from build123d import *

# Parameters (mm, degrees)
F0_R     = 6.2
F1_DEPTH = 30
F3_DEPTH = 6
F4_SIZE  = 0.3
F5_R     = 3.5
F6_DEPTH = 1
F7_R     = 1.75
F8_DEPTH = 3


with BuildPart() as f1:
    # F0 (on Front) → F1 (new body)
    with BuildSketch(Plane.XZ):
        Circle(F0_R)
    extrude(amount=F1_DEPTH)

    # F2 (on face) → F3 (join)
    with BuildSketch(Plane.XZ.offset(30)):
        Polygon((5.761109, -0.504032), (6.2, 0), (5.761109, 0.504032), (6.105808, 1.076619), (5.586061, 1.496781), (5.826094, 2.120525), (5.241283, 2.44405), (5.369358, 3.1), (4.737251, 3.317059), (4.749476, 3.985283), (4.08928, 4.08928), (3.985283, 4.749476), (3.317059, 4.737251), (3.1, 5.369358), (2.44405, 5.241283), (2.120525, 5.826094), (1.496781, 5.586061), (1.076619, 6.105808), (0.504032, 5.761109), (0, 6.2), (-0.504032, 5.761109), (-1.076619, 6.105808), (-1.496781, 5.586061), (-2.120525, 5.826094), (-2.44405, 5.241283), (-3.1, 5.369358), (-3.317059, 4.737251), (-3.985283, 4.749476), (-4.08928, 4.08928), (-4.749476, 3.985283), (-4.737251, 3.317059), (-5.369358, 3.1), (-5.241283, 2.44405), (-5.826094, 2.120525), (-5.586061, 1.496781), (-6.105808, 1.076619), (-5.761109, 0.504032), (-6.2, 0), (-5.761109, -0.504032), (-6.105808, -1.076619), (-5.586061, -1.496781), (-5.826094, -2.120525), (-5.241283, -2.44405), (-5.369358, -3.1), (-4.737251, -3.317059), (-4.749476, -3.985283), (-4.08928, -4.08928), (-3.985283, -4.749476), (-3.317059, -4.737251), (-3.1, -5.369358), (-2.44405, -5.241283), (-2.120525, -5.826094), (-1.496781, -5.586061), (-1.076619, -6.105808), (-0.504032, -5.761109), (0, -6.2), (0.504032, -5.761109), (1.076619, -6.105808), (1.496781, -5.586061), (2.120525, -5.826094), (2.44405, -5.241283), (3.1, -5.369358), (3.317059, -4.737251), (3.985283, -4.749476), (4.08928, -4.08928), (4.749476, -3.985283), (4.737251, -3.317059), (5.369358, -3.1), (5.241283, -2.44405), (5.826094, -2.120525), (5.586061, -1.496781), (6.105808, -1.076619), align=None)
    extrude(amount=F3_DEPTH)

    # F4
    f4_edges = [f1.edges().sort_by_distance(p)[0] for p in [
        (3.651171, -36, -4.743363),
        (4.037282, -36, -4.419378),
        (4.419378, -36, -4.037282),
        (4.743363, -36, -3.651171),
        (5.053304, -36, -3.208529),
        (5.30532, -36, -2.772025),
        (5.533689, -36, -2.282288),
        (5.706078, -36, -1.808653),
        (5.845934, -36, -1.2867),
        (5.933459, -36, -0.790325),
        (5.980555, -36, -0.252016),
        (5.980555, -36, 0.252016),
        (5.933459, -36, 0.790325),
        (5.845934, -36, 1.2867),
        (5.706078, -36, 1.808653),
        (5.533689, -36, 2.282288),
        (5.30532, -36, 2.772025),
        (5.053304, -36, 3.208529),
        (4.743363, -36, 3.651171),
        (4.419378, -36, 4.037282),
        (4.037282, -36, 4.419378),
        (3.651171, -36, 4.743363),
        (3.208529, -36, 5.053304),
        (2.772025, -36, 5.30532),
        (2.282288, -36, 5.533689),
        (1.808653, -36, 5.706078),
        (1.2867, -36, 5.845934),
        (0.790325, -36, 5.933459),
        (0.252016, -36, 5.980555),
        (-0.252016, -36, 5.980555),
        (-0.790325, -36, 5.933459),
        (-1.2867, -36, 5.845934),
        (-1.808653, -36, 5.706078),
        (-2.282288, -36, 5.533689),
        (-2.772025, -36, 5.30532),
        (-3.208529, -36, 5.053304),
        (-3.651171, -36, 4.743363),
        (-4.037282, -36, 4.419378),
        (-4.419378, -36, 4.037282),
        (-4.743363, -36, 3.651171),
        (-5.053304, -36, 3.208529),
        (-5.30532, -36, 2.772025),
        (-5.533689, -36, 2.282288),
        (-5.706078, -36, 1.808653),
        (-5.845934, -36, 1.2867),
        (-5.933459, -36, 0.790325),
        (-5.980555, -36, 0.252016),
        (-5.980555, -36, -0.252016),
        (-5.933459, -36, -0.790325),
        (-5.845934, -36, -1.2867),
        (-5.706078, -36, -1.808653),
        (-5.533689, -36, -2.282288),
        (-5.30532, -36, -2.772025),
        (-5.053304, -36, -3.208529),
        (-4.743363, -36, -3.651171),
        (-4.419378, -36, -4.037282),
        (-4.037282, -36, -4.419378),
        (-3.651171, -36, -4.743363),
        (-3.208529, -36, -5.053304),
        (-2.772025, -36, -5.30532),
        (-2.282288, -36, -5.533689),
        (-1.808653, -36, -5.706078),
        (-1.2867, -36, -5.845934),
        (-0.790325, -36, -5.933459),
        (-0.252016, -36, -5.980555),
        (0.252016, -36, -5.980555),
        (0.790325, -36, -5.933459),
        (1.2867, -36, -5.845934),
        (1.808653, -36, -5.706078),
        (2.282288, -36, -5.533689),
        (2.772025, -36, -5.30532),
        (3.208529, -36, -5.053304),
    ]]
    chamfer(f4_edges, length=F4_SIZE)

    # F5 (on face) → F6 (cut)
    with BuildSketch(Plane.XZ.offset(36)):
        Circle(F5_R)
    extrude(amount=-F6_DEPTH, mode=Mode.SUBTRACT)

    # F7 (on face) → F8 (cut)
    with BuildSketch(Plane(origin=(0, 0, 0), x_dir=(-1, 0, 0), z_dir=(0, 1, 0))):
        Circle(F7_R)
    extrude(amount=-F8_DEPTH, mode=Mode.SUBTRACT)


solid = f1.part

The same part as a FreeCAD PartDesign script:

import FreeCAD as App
import Part
import Sketcher
from FreeCAD import Vector


def edges_at(feature, points):
    """Names of the edges that pass closest to the given points."""
    edges = feature.Shape.Edges
    near = lambda p: min(range(len(edges)), key=lambda i: edges[i].distToShape(Part.Vertex(*p))[0])
    return sorted({f"Edge{near(p) + 1}" for p in points})


def add_polygon(sketch, points):
    """Adds a closed chain of lines whose ends are joined by coincident constraints."""
    first, n = sketch.GeometryCount, len(points)
    for a, b in zip(points, points[1:] + points[:1]):
        sketch.addGeometry(Part.LineSegment(App.Vector(*a, 0), App.Vector(*b, 0)), False)
    for i in range(n):
        sketch.addConstraint(Sketcher.Constraint("Coincident", first + i, 2, first + (i + 1) % n, 1))

doc = App.newDocument("Part")
params = doc.addObject("Spreadsheet::Sheet", "Params")
for row, (alias, value) in enumerate([
    ("sketch1_diameter", "12.4 mm"),
    ("pad1_length", "30 mm"),
    ("pad2_length", "6 mm"),
    ("chamfer_size", "0.3 mm"),
    ("sketch3_diameter", "7 mm"),
    ("pocket1_length", "1 mm"),
    ("sketch4_diameter", "3.5 mm"),
    ("pocket2_length", "3 mm"),
], start=1):
    params.set(f"A{row}", alias)
    params.set(f"B{row}", "=" + value)
    params.setAlias(f"B{row}", alias)

body = doc.addObject("PartDesign::Body", "Body")

sketch1 = doc.addObject("Sketcher::SketchObject", "Sketch")
body.addObject(sketch1)
sketch1.AttachmentSupport = (doc.XZ_Plane, [""])
sketch1.MapMode = "FlatFace"
sketch1.addGeometry(Part.Circle(Vector(0, 0, 0), Vector(0, 0, 1), 6), False)
sketch1.addConstraint([
    Sketcher.Constraint("Coincident", 0, 3, -1, 1),
    Sketcher.Constraint("Diameter", 0, 12.4),
])
sketch1.setExpression("Constraints[1]", "Params.sketch1_diameter")
pad1 = doc.addObject("PartDesign::Pad", "Pad")
body.addObject(pad1)
pad1.Profile = sketch1
pad1.setExpression("Length", "Params.pad1_length")

sketch2 = doc.addObject("Sketcher::SketchObject", "Sketch001")
body.addObject(sketch2)
sketch2.AttachmentSupport = (doc.XZ_Plane, [""])
sketch2.MapMode = "FlatFace"
sketch2.AttachmentOffset = App.Placement(Vector(0, 0, 30), App.Rotation())
add_polygon(sketch2, [(5.8, -0.5), (6.2, 0), (5.8, 0.5), (6.1, 1.1), (5.6, 1.5), (5.8, 2.1), (5.2, 2.4), (5.4, 3.1), (4.7, 3.3), (4.7, 4), (4.1, 4.1), (4, 4.7), (3.3, 4.7), (3.1, 5.4), (2.4, 5.2), (2.1, 5.8), (1.5, 5.6), (1.1, 6.1), (0.5, 5.8), (0, 6.2), (-0.5, 5.8), (-1.1, 6.1), (-1.5, 5.6), (-2.1, 5.8), (-2.4, 5.2), (-3.1, 5.4), (-3.3, 4.7), (-4, 4.7), (-4.1, 4.1), (-4.7, 4), (-4.7, 3.3), (-5.4, 3.1), (-5.2, 2.4), (-5.8, 2.1), (-5.6, 1.5), (-6.1, 1.1), (-5.8, 0.5), (-6.2, 0), (-5.8, -0.5), (-6.1, -1.1), (-5.6, -1.5), (-5.8, -2.1), (-5.2, -2.4), (-5.4, -3.1), (-4.7, -3.3), (-4.7, -4), (-4.1, -4.1), (-4, -4.7), (-3.3, -4.7), (-3.1, -5.4), (-2.4, -5.2), (-2.1, -5.8), (-1.5, -5.6), (-1.1, -6.1), (-0.5, -5.8), (0, -6.2), (0.5, -5.8), (1.1, -6.1), (1.5, -5.6), (2.1, -5.8), (2.4, -5.2), (3.1, -5.4), (3.3, -4.7), (4, -4.7), (4.1, -4.1), (4.7, -4), (4.7, -3.3), (5.4, -3.1), (5.2, -2.4), (5.8, -2.1), (5.6, -1.5), (6.1, -1.1)])
sketch2.addConstraint([
    Sketcher.Constraint("Symmetric", 0, 2, 36, 2, -1, 1),
    Sketcher.Constraint("Symmetric", 1, 2, 37, 2, -1, 1),
    Sketcher.Constraint("Symmetric", 2, 2, 38, 2, -1, 1),
    Sketcher.Constraint("Symmetric", 3, 2, 39, 2, -1, 1),
    Sketcher.Constraint("Symmetric", 4, 2, 40, 2, -1, 1),
    Sketcher.Constraint("Symmetric", 5, 2, 41, 2, -1, 1),
    Sketcher.Constraint("Symmetric", 6, 2, 42, 2, -1, 1),
    Sketcher.Constraint("Symmetric", 7, 2, 43, 2, -1, 1),
    Sketcher.Constraint("Symmetric", 8, 2, 44, 2, -1, 1),
    Sketcher.Constraint("Symmetric", 9, 2, 45, 2, -1, 1),
    Sketcher.Constraint("Symmetric", 10, 2, 46, 2, -1, 1),
    Sketcher.Constraint("Symmetric", 11, 2, 47, 2, -1, 1),
    Sketcher.Constraint("Symmetric", 12, 2, 48, 2, -1, 1),
    Sketcher.Constraint("Symmetric", 13, 2, 49, 2, -1, 1),
    Sketcher.Constraint("Symmetric", 14, 2, 50, 2, -1, 1),
    Sketcher.Constraint("Symmetric", 15, 2, 51, 2, -1, 1),
    Sketcher.Constraint("Symmetric", 16, 2, 52, 2, -1, 1),
    Sketcher.Constraint("Symmetric", 17, 2, 53, 2, -1, 1),
    Sketcher.Constraint("Symmetric", 18, 2, 54, 2, -1, 1),
    Sketcher.Constraint("Symmetric", 19, 2, 55, 2, -1, 1),
    Sketcher.Constraint("Symmetric", 20, 2, 56, 2, -1, 1),
    Sketcher.Constraint("Symmetric", 21, 2, 57, 2, -1, 1),
    Sketcher.Constraint("Symmetric", 22, 2, 58, 2, -1, 1),
    Sketcher.Constraint("Symmetric", 23, 2, 59, 2, -1, 1),
    Sketcher.Constraint("Symmetric", 24, 2, 60, 2, -1, 1),
    Sketcher.Constraint("Symmetric", 25, 2, 61, 2, -1, 1),
    Sketcher.Constraint("Symmetric", 26, 2, 62, 2, -1, 1),
    Sketcher.Constraint("Symmetric", 27, 2, 63, 2, -1, 1),
    Sketcher.Constraint("Symmetric", 28, 2, 64, 2, -1, 1),
    Sketcher.Constraint("Symmetric", 29, 2, 65, 2, -1, 1),
    Sketcher.Constraint("Symmetric", 30, 2, 66, 2, -1, 1),
    Sketcher.Constraint("Symmetric", 31, 2, 67, 2, -1, 1),
    Sketcher.Constraint("Symmetric", 32, 2, 68, 2, -1, 1),
    Sketcher.Constraint("Symmetric", 33, 2, 69, 2, -1, 1),
    Sketcher.Constraint("Symmetric", 34, 2, 70, 2, -1, 1),
    Sketcher.Constraint("Symmetric", 35, 2, 71, 2, -1, 1),
    Sketcher.Constraint("Symmetric", 17, 2, 19, 2, -2),
    Sketcher.Constraint("Symmetric", 16, 2, 20, 2, -2),
    Sketcher.Constraint("Symmetric", 15, 2, 21, 2, -2),
    Sketcher.Constraint("Symmetric", 14, 2, 22, 2, -2),
    Sketcher.Constraint("Symmetric", 13, 2, 23, 2, -2),
    Sketcher.Constraint("Symmetric", 12, 2, 24, 2, -2),
    Sketcher.Constraint("Symmetric", 11, 2, 25, 2, -2),
    Sketcher.Constraint("Symmetric", 10, 2, 26, 2, -2),
    Sketcher.Constraint("Symmetric", 9, 2, 27, 2, -2),
    Sketcher.Constraint("Symmetric", 8, 2, 28, 2, -2),
    Sketcher.Constraint("Symmetric", 7, 2, 29, 2, -2),
    Sketcher.Constraint("Symmetric", 6, 2, 30, 2, -2),
    Sketcher.Constraint("Symmetric", 5, 2, 31, 2, -2),
    Sketcher.Constraint("Symmetric", 4, 2, 32, 2, -2),
    Sketcher.Constraint("Symmetric", 3, 2, 33, 2, -2),
    Sketcher.Constraint("Symmetric", 2, 2, 34, 2, -2),
    Sketcher.Constraint("Symmetric", 1, 2, 35, 2, -2),
    Sketcher.Constraint("PointOnObject", 0, 2, -1),
    Sketcher.Constraint("PointOnObject", 18, 2, -2),
    Sketcher.Constraint("Perpendicular", 0, 18),
    Sketcher.Constraint("Perpendicular", 2, 20),
    Sketcher.Constraint("Perpendicular", 3, 21),
    Sketcher.Constraint("Perpendicular", 4, 22),
    Sketcher.Constraint("Perpendicular", 5, 23),
    Sketcher.Constraint("Perpendicular", 6, 24),
    Sketcher.Constraint("Perpendicular", 7, 25),
    Sketcher.Constraint("Perpendicular", 8, 26),
    Sketcher.Constraint("Perpendicular", 9, 27),
    Sketcher.Constraint("Equal", 1, 2),
    Sketcher.Constraint("Equal", 2, 3),
    Sketcher.Constraint("Equal", 3, 4),
    Sketcher.Constraint("Equal", 4, 5),
    Sketcher.Constraint("Equal", 5, 6),
    Sketcher.Constraint("Equal", 6, 7),
    Sketcher.Constraint("Equal", 7, 8),
    Sketcher.Constraint("Equal", 8, 9),
    Sketcher.Constraint("Equal", 9, 10),
    Sketcher.Constraint("Equal", 10, 11),
    Sketcher.Constraint("Equal", 11, 12),
    Sketcher.Constraint("Equal", 12, 13),
    Sketcher.Constraint("Equal", 13, 14),
    Sketcher.Constraint("Equal", 14, 15),
    Sketcher.Constraint("Equal", 15, 16),
    Sketcher.Constraint("Equal", 16, 17),
    Sketcher.Constraint("Equal", 17, 18),
    Sketcher.Constraint("DistanceX", -1, 1, 0, 2, 6.2),
    Sketcher.Constraint("DistanceY", -1, 1, 6, 2, 3.1),
    Sketcher.Constraint("DistanceX", -1, 1, 1, 2, 5.761109),
    Sketcher.Constraint("DistanceY", -1, 1, 2, 2, 1.076619),
    Sketcher.Constraint("DistanceX", -1, 1, 3, 2, 5.586061),
    Sketcher.Constraint("DistanceY", -1, 1, 3, 2, 1.496781),
    Sketcher.Constraint("DistanceY", -1, 1, 5, 2, 2.44405),
    Sketcher.Constraint("DistanceX", -1, 1, 7, 2, 4.737251),
    Sketcher.Constraint("DistanceY", -1, 1, 7, 2, 3.317059),
    Sketcher.Constraint("DistanceX", -1, 1, 9, 2, 4.08928),
])
pad2 = doc.addObject("PartDesign::Pad", "Pad001")
body.addObject(pad2)
pad2.Profile = sketch2
pad2.setExpression("Length", "Params.pad2_length")
doc.recompute()

chamfer = doc.addObject("PartDesign::Chamfer", "Chamfer")
body.addObject(chamfer)
chamfer.Base = (pad2, edges_at(pad2, [
    (3.651, -36, -4.743),
    (4.037, -36, -4.419),
    (4.419, -36, -4.037),
    (4.743, -36, -3.651),
    (5.053, -36, -3.209),
    (5.305, -36, -2.772),
    (5.534, -36, -2.282),
    (5.706, -36, -1.809),
    (5.846, -36, -1.287),
    (5.933, -36, -0.79),
    (5.981, -36, -0.252),
    (5.981, -36, 0.252),
    (5.933, -36, 0.79),
    (5.846, -36, 1.287),
    (5.706, -36, 1.809),
    (5.534, -36, 2.282),
    (5.305, -36, 2.772),
    (5.053, -36, 3.209),
    (4.743, -36, 3.651),
    (4.419, -36, 4.037),
    (4.037, -36, 4.419),
    (3.651, -36, 4.743),
    (3.209, -36, 5.053),
    (2.772, -36, 5.305),
    (2.282, -36, 5.534),
    (1.809, -36, 5.706),
    (1.287, -36, 5.846),
    (0.79, -36, 5.933),
    (0.252, -36, 5.981),
    (-0.252, -36, 5.981),
    (-0.79, -36, 5.933),
    (-1.287, -36, 5.846),
    (-1.809, -36, 5.706),
    (-2.282, -36, 5.534),
    (-2.772, -36, 5.305),
    (-3.209, -36, 5.053),
    (-3.651, -36, 4.743),
    (-4.037, -36, 4.419),
    (-4.419, -36, 4.037),
    (-4.743, -36, 3.651),
    (-5.053, -36, 3.209),
    (-5.305, -36, 2.772),
    (-5.534, -36, 2.282),
    (-5.706, -36, 1.809),
    (-5.846, -36, 1.287),
    (-5.933, -36, 0.79),
    (-5.981, -36, 0.252),
    (-5.981, -36, -0.252),
    (-5.933, -36, -0.79),
    (-5.846, -36, -1.287),
    (-5.706, -36, -1.809),
    (-5.534, -36, -2.282),
    (-5.305, -36, -2.772),
    (-5.053, -36, -3.209),
    (-4.743, -36, -3.651),
    (-4.419, -36, -4.037),
    (-4.037, -36, -4.419),
    (-3.651, -36, -4.743),
    (-3.209, -36, -5.053),
    (-2.772, -36, -5.305),
    (-2.282, -36, -5.534),
    (-1.809, -36, -5.706),
    (-1.287, -36, -5.846),
    (-0.79, -36, -5.933),
    (-0.252, -36, -5.981),
    (0.252, -36, -5.981),
    (0.79, -36, -5.933),
    (1.287, -36, -5.846),
    (1.809, -36, -5.706),
    (2.282, -36, -5.534),
    (2.772, -36, -5.305),
    (3.209, -36, -5.053),
]))
chamfer.setExpression("Size", "Params.chamfer_size")

sketch3 = doc.addObject("Sketcher::SketchObject", "Sketch002")
body.addObject(sketch3)
sketch3.AttachmentSupport = (doc.XZ_Plane, [""])
sketch3.MapMode = "FlatFace"
sketch3.AttachmentOffset = App.Placement(Vector(0, 0, 36), App.Rotation())
sketch3.addGeometry(Part.Circle(Vector(0, 0, 0), Vector(0, 0, 1), 3.5), False)
sketch3.addConstraint([
    Sketcher.Constraint("Coincident", 0, 3, -1, 1),
    Sketcher.Constraint("Diameter", 0, 7.0),
])
sketch3.setExpression("Constraints[1]", "Params.sketch3_diameter")
pocket1 = doc.addObject("PartDesign::Pocket", "Pocket")
body.addObject(pocket1)
pocket1.Profile = sketch3
pocket1.setExpression("Length", "Params.pocket1_length")

sketch4 = doc.addObject("Sketcher::SketchObject", "Sketch003")
body.addObject(sketch4)
sketch4.AttachmentSupport = (doc.XZ_Plane, [""])
sketch4.MapMode = "FlatFace"
sketch4.addGeometry(Part.Circle(Vector(0, 0, 0), Vector(0, 0, 1), 1.8), False)
sketch4.addConstraint([
    Sketcher.Constraint("Coincident", 0, 3, -1, 1),
    Sketcher.Constraint("Diameter", 0, 3.5),
])
sketch4.setExpression("Constraints[1]", "Params.sketch4_diameter")
pocket2 = doc.addObject("PartDesign::Pocket", "Pocket001")
body.addObject(pocket2)
pocket2.Profile = sketch4
pocket2.setExpression("Length", "Params.pocket2_length")
pocket2.Reversed = True

doc.recompute()
